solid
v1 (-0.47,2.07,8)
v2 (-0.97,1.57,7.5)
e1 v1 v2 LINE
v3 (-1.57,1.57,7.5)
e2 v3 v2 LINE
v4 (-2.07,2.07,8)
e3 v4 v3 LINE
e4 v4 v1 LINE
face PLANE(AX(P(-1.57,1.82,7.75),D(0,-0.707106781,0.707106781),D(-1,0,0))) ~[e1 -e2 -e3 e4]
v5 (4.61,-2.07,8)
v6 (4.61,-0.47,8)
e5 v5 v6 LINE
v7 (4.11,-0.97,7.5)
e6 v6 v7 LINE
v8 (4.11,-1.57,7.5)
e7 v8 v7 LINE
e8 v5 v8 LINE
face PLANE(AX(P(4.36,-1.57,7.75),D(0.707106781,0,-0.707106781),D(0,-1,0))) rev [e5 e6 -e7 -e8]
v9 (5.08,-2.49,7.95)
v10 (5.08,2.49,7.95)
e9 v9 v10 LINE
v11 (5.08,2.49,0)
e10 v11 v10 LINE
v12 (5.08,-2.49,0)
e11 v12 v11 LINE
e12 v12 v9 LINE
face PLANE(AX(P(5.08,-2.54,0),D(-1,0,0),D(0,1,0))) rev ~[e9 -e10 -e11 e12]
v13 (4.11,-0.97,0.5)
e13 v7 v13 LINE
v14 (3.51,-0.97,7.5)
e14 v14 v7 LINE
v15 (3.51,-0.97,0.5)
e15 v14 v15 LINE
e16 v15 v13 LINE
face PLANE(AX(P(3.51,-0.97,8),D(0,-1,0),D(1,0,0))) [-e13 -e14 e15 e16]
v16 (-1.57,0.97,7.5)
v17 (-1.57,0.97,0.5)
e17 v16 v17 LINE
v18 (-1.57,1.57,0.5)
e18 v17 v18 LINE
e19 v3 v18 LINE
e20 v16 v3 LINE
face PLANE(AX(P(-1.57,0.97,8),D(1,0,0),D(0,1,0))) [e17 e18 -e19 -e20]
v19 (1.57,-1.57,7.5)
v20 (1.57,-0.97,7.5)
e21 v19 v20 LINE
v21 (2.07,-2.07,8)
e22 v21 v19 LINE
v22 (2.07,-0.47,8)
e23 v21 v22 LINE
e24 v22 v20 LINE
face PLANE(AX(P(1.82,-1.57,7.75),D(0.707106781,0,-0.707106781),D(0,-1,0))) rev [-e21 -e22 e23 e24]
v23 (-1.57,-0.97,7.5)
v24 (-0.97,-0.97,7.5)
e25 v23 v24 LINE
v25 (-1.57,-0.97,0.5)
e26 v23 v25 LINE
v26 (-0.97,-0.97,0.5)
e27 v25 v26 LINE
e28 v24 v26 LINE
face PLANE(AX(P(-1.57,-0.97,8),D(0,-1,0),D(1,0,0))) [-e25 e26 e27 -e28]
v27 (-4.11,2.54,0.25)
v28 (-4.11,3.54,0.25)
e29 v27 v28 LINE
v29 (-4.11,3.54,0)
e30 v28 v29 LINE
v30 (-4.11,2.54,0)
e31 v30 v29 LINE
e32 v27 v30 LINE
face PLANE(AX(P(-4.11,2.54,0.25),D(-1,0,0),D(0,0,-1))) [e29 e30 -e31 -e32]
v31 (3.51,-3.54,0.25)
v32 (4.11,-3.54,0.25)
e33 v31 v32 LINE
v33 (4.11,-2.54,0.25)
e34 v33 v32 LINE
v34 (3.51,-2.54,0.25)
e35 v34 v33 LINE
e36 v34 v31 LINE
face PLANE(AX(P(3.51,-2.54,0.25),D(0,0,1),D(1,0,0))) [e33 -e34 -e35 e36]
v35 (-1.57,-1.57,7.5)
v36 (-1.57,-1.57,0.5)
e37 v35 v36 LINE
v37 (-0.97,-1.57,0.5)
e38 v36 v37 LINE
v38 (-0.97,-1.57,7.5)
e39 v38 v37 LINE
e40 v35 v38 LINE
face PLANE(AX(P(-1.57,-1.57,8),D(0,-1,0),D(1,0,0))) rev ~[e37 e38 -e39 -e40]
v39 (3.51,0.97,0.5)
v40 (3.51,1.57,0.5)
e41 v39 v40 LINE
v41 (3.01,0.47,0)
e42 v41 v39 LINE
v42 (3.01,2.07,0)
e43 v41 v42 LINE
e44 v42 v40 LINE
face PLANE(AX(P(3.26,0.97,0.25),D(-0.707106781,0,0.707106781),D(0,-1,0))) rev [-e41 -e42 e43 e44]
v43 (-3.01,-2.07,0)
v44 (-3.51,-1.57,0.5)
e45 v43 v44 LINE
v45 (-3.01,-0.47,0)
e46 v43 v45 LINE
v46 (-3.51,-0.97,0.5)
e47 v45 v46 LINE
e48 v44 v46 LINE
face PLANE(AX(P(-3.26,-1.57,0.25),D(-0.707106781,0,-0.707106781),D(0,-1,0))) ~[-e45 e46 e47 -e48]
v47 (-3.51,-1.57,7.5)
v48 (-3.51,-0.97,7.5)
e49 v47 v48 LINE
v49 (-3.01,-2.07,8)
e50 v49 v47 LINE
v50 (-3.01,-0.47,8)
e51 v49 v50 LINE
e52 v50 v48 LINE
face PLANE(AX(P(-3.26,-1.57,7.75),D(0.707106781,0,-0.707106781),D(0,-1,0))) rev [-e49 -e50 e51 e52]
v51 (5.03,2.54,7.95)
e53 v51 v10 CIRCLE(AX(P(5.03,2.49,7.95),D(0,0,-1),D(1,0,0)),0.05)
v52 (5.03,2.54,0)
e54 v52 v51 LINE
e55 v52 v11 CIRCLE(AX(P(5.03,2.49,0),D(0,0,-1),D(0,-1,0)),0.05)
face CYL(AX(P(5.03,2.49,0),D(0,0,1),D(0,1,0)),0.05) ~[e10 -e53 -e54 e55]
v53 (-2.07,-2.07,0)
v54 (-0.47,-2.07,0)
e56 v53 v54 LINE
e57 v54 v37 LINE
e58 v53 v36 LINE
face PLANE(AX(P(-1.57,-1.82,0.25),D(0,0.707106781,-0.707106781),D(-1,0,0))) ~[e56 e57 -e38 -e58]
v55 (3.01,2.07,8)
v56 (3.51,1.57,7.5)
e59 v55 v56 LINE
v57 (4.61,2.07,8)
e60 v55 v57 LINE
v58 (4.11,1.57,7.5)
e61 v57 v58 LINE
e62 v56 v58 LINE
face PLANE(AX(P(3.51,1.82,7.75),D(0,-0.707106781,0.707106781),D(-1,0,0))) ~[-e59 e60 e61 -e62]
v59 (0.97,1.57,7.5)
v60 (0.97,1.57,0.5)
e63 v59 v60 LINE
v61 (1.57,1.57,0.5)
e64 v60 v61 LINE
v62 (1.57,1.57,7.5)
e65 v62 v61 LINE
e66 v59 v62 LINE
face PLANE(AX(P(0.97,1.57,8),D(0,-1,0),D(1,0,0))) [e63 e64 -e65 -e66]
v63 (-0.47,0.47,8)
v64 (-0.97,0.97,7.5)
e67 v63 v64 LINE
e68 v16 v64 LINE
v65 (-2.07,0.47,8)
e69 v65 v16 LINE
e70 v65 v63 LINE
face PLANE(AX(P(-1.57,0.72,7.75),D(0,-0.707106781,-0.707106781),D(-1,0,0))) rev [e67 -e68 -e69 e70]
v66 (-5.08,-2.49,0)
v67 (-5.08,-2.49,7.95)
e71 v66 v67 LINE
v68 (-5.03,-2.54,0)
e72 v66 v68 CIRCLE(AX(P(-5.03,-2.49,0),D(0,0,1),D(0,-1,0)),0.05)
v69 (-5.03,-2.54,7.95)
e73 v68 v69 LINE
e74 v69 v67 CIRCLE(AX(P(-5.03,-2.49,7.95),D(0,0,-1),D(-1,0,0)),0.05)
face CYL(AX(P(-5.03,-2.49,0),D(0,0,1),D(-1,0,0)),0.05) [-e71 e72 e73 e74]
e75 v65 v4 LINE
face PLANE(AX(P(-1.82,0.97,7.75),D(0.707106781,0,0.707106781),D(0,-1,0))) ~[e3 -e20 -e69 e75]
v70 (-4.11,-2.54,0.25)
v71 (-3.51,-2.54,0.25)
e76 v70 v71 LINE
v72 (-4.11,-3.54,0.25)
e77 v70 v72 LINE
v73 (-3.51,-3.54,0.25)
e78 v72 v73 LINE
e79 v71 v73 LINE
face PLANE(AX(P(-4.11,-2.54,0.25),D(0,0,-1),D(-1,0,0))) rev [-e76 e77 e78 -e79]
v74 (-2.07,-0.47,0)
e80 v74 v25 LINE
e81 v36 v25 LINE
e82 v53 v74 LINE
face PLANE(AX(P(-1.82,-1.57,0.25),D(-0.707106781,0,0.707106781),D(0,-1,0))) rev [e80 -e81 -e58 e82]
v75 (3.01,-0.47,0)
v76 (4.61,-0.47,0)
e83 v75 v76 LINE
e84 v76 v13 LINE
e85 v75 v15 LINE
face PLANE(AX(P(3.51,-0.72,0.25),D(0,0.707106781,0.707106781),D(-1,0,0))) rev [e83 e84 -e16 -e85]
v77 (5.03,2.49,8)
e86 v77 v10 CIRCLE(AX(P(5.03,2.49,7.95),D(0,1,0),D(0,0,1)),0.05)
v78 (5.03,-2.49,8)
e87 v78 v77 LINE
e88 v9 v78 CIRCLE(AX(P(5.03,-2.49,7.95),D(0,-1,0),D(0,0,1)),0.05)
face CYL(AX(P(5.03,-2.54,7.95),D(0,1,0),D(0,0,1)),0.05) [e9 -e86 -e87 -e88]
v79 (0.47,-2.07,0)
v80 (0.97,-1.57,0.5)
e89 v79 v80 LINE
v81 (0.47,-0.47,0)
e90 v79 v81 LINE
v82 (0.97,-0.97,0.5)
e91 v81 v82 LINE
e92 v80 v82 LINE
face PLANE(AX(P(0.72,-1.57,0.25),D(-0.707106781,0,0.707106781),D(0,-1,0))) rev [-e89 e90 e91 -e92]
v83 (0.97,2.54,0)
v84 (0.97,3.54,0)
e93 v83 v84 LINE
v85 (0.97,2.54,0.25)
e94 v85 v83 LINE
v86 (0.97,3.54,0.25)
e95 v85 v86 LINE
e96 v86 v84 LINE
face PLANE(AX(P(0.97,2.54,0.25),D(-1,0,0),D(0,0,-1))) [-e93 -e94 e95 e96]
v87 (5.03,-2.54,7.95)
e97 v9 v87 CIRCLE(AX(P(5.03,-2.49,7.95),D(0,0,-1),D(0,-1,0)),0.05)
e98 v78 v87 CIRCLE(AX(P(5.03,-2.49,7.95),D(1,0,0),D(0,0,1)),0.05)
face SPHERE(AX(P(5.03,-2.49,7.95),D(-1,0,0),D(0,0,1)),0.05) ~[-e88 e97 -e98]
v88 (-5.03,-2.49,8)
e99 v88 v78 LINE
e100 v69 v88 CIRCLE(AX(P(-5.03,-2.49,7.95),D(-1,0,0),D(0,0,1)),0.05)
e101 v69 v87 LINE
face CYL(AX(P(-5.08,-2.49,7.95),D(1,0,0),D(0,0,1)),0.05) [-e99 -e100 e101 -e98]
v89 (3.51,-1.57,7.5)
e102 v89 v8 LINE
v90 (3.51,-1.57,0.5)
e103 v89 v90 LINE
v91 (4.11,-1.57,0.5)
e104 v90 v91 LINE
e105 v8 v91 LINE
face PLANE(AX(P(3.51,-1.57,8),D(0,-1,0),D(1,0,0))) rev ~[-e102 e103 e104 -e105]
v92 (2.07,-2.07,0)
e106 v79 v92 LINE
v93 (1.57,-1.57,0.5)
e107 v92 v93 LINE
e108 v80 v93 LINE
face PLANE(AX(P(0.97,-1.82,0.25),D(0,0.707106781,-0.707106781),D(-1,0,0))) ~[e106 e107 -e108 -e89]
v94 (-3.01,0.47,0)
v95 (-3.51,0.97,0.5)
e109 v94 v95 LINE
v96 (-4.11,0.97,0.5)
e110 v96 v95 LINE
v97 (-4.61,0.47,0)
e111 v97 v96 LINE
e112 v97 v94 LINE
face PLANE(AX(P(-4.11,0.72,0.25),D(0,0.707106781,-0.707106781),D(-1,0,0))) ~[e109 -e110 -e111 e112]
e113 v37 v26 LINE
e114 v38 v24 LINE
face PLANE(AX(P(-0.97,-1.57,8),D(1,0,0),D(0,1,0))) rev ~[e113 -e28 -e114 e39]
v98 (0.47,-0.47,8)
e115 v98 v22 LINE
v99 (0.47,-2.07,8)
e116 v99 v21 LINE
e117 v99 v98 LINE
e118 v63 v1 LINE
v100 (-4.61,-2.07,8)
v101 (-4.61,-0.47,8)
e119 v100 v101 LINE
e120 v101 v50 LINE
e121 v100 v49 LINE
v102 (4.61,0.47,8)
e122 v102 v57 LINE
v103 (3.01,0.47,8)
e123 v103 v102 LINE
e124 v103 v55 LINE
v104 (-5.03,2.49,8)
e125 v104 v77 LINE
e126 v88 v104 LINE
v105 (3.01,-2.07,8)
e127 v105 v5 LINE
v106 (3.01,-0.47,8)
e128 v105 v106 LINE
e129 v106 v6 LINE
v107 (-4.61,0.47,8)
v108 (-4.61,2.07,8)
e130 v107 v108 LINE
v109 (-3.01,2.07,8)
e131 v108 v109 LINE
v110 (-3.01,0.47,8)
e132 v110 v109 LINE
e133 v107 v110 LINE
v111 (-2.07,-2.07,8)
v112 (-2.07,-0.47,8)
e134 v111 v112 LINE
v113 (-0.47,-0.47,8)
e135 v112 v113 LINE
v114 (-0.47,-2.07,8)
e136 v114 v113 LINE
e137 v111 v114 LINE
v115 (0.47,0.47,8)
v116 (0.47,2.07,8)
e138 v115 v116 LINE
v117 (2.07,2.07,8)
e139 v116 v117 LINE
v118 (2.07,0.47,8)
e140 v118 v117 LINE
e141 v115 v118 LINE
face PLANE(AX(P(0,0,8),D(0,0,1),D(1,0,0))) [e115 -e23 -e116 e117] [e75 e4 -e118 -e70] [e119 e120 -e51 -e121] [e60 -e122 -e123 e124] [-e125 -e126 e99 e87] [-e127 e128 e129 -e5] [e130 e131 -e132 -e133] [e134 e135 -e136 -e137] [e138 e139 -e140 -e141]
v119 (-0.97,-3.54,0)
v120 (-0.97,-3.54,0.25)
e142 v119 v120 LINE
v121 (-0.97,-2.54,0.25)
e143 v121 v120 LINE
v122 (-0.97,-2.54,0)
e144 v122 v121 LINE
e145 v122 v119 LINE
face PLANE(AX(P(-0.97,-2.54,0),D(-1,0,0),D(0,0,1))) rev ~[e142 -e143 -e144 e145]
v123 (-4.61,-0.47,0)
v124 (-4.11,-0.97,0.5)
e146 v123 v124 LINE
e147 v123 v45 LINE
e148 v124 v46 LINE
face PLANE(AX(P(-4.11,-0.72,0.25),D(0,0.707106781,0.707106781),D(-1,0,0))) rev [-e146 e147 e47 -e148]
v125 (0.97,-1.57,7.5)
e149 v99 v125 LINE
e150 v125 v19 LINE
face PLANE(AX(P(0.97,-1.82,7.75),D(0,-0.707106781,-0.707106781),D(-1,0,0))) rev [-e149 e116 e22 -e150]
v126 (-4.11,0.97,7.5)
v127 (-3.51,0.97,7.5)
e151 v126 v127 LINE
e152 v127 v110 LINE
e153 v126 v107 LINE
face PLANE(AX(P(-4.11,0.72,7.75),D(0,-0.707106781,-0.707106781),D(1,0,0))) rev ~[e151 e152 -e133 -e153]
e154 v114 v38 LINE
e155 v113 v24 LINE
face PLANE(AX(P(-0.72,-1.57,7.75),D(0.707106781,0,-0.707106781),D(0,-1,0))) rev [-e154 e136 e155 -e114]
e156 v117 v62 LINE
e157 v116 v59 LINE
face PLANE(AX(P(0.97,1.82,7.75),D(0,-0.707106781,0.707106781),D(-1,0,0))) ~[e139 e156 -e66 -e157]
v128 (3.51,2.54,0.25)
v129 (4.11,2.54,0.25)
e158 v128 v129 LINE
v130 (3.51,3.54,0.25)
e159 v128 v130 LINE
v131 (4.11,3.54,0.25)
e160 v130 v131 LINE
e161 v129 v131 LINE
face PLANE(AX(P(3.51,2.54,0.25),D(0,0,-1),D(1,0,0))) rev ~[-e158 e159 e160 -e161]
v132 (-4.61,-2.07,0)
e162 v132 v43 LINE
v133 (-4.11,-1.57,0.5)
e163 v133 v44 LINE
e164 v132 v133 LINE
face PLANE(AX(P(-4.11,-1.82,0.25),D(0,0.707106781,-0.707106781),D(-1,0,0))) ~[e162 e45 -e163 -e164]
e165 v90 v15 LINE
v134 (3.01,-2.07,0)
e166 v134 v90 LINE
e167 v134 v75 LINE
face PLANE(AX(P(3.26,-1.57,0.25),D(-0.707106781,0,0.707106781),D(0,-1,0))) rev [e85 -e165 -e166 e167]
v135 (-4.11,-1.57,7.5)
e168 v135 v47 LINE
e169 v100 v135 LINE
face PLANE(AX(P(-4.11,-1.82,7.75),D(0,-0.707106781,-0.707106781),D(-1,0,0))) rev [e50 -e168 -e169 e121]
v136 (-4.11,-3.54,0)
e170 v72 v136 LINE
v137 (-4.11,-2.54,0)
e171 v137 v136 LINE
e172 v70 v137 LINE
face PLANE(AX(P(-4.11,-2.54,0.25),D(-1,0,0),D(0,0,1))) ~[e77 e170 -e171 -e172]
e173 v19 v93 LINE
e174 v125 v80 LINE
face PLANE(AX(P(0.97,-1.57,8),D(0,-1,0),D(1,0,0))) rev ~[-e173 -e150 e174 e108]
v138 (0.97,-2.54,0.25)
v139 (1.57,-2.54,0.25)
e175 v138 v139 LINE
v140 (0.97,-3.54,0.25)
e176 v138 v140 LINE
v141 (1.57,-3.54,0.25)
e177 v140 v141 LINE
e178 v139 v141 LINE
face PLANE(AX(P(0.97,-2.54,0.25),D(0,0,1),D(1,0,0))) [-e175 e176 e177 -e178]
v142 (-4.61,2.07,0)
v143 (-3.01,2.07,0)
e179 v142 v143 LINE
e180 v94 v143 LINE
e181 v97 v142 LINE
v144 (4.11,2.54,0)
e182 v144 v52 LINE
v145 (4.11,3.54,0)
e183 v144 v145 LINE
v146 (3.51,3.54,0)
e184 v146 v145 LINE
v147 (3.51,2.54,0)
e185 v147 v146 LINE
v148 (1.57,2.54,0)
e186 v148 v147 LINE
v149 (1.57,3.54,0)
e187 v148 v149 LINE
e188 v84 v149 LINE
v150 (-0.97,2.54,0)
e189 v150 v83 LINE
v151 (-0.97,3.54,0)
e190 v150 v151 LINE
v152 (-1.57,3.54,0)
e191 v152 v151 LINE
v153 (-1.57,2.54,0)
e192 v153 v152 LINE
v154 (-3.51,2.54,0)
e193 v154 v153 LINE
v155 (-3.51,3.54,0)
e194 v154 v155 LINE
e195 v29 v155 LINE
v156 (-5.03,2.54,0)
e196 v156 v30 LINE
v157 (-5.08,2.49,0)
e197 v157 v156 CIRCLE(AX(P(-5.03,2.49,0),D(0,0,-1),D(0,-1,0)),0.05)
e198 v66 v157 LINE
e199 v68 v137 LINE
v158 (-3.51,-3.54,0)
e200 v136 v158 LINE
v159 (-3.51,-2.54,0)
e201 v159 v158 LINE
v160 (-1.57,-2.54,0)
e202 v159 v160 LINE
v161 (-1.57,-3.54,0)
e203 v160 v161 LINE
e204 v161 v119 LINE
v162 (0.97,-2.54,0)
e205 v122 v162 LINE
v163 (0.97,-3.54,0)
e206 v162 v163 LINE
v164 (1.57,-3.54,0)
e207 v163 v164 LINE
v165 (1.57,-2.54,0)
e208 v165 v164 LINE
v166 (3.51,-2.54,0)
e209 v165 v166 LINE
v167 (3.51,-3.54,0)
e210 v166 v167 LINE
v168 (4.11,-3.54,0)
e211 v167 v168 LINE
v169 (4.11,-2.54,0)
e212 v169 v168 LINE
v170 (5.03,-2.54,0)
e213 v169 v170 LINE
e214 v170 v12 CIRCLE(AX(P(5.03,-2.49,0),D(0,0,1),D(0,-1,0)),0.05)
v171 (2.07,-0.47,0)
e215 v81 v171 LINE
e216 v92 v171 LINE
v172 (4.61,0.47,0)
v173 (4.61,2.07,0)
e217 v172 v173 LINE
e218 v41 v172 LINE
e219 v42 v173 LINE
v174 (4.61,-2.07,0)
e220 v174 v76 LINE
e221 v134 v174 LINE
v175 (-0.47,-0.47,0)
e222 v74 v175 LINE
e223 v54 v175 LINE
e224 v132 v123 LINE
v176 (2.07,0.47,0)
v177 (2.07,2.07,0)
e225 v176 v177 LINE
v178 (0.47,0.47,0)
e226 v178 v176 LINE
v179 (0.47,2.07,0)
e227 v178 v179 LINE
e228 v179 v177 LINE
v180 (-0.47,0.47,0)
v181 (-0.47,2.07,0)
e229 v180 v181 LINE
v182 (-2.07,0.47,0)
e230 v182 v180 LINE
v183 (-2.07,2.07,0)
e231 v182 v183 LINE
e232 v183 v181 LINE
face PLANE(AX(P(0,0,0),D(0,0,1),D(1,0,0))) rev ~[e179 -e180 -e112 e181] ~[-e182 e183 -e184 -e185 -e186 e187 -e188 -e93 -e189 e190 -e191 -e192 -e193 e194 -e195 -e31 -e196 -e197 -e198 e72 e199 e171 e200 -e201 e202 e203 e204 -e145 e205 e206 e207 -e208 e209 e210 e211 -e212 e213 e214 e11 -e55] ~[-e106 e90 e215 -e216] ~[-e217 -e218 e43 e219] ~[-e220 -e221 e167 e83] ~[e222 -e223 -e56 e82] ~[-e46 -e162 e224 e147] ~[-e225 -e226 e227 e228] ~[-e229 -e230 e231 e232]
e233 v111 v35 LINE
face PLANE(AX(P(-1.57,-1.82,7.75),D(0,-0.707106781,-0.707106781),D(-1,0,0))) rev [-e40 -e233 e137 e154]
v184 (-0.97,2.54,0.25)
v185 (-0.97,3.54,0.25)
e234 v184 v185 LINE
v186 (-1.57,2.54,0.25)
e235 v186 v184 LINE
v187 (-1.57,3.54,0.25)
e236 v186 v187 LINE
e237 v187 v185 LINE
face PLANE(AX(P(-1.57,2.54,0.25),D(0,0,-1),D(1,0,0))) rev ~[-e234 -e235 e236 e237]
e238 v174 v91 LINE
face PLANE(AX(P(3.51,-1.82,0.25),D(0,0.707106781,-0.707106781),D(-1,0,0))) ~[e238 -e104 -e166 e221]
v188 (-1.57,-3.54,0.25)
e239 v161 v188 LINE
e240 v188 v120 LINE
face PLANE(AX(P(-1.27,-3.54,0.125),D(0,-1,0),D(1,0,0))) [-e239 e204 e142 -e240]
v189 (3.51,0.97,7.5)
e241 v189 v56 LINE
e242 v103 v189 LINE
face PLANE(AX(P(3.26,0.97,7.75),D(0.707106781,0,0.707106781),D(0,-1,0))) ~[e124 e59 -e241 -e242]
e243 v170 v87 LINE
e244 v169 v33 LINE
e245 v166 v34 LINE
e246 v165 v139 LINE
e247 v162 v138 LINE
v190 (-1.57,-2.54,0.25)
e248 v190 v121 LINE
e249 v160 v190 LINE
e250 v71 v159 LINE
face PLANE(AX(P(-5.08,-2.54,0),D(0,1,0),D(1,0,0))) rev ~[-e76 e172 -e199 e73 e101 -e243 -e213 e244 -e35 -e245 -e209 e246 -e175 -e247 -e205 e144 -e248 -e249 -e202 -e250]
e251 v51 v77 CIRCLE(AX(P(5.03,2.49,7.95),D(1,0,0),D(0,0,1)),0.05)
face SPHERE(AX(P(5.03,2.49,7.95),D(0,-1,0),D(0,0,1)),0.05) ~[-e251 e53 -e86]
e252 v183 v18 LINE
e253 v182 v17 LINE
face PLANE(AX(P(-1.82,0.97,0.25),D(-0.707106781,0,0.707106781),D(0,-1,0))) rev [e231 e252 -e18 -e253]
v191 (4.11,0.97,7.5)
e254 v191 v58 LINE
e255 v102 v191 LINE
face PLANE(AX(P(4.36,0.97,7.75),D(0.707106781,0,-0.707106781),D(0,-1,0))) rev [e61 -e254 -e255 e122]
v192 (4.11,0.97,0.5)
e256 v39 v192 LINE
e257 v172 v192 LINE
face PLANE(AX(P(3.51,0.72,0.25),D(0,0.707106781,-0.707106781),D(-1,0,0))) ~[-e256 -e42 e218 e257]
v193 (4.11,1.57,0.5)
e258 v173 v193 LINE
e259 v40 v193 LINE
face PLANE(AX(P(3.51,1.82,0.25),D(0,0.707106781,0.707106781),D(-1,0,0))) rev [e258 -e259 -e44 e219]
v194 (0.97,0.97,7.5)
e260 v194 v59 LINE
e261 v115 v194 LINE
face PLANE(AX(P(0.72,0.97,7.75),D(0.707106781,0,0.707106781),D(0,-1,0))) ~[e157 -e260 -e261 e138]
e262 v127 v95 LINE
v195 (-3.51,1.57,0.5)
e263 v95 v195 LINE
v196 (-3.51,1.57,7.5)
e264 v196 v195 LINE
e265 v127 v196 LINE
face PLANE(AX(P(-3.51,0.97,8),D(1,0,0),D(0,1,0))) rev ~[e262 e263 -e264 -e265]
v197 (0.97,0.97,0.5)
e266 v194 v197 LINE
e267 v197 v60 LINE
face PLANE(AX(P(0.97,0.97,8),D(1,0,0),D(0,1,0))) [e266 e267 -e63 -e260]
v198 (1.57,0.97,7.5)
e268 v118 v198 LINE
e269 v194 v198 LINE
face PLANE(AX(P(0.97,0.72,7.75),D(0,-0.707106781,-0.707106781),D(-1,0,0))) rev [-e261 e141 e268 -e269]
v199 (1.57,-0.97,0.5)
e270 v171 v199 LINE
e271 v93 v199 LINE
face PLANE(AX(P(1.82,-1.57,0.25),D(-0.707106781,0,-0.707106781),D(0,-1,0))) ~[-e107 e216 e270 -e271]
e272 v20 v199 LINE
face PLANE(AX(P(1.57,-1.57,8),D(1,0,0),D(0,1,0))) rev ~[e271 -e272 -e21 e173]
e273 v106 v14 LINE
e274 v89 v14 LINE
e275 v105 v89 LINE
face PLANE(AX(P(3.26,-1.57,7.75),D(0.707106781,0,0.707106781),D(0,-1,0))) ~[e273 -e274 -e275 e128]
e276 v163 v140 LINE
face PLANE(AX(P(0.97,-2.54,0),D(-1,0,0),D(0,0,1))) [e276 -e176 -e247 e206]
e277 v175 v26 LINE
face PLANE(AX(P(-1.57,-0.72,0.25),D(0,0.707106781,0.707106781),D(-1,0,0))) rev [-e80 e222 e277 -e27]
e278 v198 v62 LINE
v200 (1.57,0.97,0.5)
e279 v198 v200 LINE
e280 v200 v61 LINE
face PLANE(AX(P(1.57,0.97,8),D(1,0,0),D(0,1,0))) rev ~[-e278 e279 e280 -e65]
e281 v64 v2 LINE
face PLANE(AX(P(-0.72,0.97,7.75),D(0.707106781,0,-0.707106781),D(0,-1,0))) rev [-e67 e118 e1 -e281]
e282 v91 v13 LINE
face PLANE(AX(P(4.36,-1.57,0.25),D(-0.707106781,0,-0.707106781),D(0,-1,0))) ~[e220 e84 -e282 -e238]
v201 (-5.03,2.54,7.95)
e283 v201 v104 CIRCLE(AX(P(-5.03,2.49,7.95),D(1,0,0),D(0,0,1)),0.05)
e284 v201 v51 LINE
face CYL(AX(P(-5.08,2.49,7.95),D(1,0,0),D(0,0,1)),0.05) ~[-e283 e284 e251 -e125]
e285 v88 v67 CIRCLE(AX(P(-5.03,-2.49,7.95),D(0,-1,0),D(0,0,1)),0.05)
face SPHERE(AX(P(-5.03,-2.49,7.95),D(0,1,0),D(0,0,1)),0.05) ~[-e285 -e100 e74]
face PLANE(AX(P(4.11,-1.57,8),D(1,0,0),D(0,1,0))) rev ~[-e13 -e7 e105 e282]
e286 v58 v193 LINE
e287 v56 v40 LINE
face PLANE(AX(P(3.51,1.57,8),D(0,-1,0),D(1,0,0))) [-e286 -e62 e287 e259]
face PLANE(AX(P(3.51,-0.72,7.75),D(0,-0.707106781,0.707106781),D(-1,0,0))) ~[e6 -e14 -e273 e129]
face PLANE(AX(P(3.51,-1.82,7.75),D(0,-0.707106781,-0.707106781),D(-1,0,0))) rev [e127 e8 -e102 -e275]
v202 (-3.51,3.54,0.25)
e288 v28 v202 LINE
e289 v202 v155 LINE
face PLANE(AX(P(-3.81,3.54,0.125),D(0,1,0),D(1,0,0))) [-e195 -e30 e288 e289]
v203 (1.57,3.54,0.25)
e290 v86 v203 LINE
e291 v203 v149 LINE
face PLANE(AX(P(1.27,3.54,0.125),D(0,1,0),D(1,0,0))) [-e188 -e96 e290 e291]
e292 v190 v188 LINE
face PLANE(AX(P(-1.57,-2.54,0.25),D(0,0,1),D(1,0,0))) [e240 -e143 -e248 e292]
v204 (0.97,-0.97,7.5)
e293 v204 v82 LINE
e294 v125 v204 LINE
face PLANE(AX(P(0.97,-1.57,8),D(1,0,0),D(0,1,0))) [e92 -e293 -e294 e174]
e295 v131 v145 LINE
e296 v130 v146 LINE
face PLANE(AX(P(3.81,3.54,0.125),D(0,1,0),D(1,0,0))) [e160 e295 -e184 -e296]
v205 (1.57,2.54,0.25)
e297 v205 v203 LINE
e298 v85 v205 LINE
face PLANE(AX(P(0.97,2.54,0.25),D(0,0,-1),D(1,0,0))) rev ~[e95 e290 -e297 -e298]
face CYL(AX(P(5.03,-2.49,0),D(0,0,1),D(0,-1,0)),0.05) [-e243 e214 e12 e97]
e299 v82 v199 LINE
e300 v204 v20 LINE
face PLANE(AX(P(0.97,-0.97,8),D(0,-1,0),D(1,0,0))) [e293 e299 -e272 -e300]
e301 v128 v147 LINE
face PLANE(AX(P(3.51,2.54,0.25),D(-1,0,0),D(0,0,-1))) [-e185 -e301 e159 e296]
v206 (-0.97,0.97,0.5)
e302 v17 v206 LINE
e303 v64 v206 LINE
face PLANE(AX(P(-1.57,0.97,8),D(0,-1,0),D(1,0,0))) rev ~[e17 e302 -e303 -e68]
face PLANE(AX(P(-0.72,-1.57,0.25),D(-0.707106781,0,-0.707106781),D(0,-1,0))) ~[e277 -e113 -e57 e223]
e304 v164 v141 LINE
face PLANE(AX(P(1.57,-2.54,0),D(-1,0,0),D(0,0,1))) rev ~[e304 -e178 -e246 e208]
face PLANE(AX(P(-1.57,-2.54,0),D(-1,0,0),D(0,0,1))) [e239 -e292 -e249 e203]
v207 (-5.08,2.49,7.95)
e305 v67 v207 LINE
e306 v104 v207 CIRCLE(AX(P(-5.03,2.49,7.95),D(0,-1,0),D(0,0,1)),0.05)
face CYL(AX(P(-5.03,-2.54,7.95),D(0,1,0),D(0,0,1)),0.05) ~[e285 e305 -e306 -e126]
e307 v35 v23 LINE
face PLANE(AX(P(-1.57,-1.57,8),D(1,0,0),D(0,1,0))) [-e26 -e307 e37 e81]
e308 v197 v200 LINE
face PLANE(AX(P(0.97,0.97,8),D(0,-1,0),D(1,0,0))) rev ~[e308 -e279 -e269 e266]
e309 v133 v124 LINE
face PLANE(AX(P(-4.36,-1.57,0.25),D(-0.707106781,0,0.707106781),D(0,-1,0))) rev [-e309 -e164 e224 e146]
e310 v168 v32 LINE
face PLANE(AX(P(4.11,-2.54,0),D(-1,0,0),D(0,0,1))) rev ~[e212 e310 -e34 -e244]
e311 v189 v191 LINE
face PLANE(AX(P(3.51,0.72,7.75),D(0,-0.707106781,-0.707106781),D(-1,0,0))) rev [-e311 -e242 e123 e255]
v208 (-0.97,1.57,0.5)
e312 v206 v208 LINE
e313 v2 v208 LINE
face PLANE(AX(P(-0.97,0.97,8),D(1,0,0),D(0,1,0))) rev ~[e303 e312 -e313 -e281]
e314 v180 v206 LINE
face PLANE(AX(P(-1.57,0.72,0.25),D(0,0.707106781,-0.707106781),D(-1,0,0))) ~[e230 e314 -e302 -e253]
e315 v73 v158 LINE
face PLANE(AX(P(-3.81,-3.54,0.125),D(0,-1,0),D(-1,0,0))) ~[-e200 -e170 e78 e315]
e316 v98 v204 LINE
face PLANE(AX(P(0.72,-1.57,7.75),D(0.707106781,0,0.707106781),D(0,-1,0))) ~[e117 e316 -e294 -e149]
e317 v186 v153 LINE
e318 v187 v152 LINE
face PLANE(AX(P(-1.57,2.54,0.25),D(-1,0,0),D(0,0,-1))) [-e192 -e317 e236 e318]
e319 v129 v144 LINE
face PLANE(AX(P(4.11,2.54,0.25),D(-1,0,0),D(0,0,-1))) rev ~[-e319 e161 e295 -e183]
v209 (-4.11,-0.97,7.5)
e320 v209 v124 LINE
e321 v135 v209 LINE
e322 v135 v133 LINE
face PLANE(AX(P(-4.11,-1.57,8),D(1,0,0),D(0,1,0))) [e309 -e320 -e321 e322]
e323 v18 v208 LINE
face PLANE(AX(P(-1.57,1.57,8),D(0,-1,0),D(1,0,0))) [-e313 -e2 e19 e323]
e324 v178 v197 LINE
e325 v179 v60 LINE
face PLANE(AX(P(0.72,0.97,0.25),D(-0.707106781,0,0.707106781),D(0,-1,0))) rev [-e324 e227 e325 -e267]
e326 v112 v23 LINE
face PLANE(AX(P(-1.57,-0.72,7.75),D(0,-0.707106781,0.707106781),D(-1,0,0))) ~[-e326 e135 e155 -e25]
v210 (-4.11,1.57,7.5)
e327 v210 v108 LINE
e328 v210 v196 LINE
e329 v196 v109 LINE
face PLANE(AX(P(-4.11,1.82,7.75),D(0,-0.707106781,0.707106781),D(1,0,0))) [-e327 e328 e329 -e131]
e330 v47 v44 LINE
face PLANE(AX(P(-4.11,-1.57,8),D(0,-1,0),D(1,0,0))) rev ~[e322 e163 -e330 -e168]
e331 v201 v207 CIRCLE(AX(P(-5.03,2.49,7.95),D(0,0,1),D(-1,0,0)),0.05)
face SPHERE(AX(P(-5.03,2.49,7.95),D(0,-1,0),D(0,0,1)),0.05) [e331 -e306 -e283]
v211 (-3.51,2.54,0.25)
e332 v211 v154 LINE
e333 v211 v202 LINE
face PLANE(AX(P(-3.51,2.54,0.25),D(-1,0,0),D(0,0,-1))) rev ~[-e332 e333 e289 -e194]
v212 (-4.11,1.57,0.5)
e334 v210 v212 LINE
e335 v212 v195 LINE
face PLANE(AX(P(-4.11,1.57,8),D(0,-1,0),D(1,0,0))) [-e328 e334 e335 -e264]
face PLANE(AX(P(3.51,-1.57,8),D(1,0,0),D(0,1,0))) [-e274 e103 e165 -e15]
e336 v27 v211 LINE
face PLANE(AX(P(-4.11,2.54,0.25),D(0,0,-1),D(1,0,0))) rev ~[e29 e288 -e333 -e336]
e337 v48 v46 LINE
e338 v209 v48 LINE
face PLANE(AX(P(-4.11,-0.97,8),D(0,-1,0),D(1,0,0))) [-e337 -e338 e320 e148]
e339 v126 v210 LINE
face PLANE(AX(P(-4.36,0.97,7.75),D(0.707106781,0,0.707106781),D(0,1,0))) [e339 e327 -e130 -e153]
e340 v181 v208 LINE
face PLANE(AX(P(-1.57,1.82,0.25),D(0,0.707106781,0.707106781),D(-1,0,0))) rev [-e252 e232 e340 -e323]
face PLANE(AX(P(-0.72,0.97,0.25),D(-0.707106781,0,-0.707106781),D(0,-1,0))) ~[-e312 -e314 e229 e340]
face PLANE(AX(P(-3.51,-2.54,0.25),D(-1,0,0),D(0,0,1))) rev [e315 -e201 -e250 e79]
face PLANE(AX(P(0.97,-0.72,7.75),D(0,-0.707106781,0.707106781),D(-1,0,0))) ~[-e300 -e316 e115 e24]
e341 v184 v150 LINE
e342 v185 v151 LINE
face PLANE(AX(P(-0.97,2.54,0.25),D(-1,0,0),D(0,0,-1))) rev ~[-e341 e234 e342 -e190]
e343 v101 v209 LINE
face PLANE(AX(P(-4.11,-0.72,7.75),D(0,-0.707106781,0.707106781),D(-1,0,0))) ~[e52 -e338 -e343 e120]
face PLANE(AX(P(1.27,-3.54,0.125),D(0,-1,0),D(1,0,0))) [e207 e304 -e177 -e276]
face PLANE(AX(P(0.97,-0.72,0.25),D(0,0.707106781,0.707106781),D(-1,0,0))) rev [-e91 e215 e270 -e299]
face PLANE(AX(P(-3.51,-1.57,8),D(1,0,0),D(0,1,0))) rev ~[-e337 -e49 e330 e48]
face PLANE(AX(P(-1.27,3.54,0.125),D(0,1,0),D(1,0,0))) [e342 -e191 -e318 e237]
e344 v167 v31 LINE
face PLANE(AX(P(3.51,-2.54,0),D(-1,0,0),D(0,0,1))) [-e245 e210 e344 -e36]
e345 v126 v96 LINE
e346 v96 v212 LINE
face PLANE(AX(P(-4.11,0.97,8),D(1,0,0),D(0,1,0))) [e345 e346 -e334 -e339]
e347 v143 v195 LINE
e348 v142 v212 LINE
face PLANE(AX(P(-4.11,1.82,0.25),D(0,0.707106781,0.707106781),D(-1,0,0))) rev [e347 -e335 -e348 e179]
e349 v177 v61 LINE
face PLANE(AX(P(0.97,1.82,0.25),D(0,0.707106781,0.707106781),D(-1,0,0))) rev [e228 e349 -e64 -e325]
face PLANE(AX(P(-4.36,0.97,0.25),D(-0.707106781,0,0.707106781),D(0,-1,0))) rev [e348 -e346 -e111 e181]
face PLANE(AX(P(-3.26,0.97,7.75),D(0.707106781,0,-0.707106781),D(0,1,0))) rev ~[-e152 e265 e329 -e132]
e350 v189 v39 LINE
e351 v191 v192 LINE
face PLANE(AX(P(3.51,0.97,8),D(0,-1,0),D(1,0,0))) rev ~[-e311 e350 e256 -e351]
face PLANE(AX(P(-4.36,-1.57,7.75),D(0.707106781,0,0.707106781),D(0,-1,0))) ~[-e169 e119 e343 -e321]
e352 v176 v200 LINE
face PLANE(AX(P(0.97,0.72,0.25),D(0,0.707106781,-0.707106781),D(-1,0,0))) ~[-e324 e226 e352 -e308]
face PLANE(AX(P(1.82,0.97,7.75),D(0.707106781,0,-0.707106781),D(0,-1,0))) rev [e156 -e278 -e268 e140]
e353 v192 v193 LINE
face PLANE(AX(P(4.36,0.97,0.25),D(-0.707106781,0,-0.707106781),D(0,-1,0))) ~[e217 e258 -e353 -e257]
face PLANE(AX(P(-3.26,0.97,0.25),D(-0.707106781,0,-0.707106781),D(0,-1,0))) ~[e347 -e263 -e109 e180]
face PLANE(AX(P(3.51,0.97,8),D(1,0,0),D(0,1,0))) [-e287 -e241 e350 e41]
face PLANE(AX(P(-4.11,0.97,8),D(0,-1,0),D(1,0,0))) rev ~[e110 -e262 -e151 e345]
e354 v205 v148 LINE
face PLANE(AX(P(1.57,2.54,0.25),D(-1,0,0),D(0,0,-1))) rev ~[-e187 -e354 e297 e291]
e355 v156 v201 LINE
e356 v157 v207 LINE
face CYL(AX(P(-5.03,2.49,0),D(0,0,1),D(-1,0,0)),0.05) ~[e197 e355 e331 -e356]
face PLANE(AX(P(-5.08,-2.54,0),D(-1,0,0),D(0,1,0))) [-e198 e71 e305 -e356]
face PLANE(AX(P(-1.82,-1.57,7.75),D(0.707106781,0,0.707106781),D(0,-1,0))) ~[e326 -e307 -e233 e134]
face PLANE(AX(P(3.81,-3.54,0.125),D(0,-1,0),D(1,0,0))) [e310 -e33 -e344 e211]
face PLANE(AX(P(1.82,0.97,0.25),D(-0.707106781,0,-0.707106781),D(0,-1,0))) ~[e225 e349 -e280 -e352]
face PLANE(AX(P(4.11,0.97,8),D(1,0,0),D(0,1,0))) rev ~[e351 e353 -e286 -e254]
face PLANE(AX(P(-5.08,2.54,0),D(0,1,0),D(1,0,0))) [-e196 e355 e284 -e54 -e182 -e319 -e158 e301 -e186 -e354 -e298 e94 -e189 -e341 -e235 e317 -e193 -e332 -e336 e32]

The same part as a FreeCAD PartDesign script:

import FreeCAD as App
import Part
import Sketcher


def edges_at(feature, points):
    """Names of the edges that pass closest to the given points."""
    edges = feature.Shape.Edges
    near = lambda p: min(range(len(edges)), key=lambda i: edges[i].distToShape(Part.Vertex(*p))[0])
    return sorted({f"Edge{near(p) + 1}" for p in points})

doc = App.newDocument("Part")
params = doc.addObject("Spreadsheet::Sheet", "Params")
for row, (alias, value) in enumerate([
    ("sketch1_width", "10.16 mm"),
    ("sketch1_height", "5.08 mm"),
    ("pad1_length", "8 mm"),
    ("sketch2_width", "0.6 mm"),
    ("chamfer_size", "0.5 mm"),
    ("chamfer2_size", "0.5 mm"),
    ("fillet_radius", "0.05 mm"),
    ("sketch3_width", "0.6 mm"),
    ("sketch3_height", "0.25 mm"),
    ("pad2_length", "1 mm"),
    ("linearpattern_pitch", "2.54 mm"),
    ("sketch4_width", "0.6 mm"),
    ("sketch4_height", "0.25 mm"),
    ("pad3_length", "1 mm"),
    ("sketch5_width", "0.6 mm"),
    ("sketch5_height", "0.25 mm"),
    ("pad4_length", "1 mm"),
    ("sketch6_width", "0.6 mm"),
    ("sketch6_height", "0.25 mm"),
    ("pad5_length", "1 mm"),
], start=1):
    params.set(f"A{row}", alias)
    params.set(f"B{row}", "=" + value)
    params.setAlias(f"B{row}", alias)

body = doc.addObject("PartDesign::Body", "Body")

# Sketch on XY plane
sketch1 = body.newObject("Sketcher::SketchObject", "Sketch")
sketch1.AttachmentSupport = (doc.getObject("XY_Plane"), [""])
sketch1.MapMode = "FlatFace"
sketch1.addGeometry(Part.LineSegment(App.Vector(-5, 3, 0), App.Vector(-5, -3, 0)), False)
sketch1.addGeometry(Part.LineSegment(App.Vector(-5, -3, 0), App.Vector(5, -3, 0)), False)
sketch1.addGeometry(Part.LineSegment(App.Vector(5, -3, 0), App.Vector(5, 3, 0)), False)
sketch1.addGeometry(Part.LineSegment(App.Vector(5, 3, 0), App.Vector(-5, 3, 0)), False)
sketch1.addConstraint(Sketcher.Constraint("Coincident", 0, 2, 1, 1))
sketch1.addConstraint(Sketcher.Constraint("Coincident", 1, 2, 2, 1))
sketch1.addConstraint(Sketcher.Constraint("Coincident", 2, 2, 3, 1))
sketch1.addConstraint(Sketcher.Constraint("Coincident", 3, 2, 0, 1))
sketch1.addConstraint(Sketcher.Constraint("Vertical", 0))
sketch1.addConstraint(Sketcher.Constraint("Horizontal", 1))
sketch1.addConstraint(Sketcher.Constraint("Vertical", 2))
sketch1.addConstraint(Sketcher.Constraint("Horizontal", 3))
sketch1.addConstraint(Sketcher.Constraint("Symmetric", 0, 2, 2, 2, -1, 1))
sketch1.addConstraint(Sketcher.Constraint("DistanceX", 1, 1, 1, 2, 10.16))
sketch1.addConstraint(Sketcher.Constraint("DistanceY", 0, 2, 0, 1, 5.08))
sketch1.setExpression("Constraints[9]", "Params.sketch1_width")
sketch1.setExpression("Constraints[10]", "Params.sketch1_height")
pad1 = body.newObject("PartDesign::Pad", "Pad")
pad1.Profile = sketch1
pad1.setExpression("Length", "Params.pad1_length")

# Sketch on XY plane
sketch2 = body.newObject("Sketcher::SketchObject", "Sketch001")
sketch2.AttachmentSupport = (doc.getObject("XY_Plane"), [""])
sketch2.MapMode = "FlatFace"
sketch2.AttachmentOffset = App.Placement(App.Vector(0, 0, 8), App.Rotation())
sketch2.addGeometry(Part.LineSegment(App.Vector(1, 1.6, 0), App.Vector(1, 1, 0)), False)
sketch2.addGeometry(Part.LineSegment(App.Vector(1, 1, 0), App.Vector(1.6, 1, 0)), False)
sketch2.addGeometry(Part.LineSegment(App.Vector(1.6, 1, 0), App.Vector(1.6, 1.6, 0)), False)
sketch2.addGeometry(Part.LineSegment(App.Vector(1.6, 1.6, 0), App.Vector(1, 1.6, 0)), False)
sketch2.addGeometry(Part.LineSegment(App.Vector(-1.6, 1.6, 0), App.Vector(-1.6, 1, 0)), False)
sketch2.addGeometry(Part.LineSegment(App.Vector(-1.6, 1, 0), App.Vector(-1, 1, 0)), False)
sketch2.addGeometry(Part.LineSegment(App.Vector(-1, 1, 0), App.Vector(-1, 1.6, 0)), False)
sketch2.addGeometry(Part.LineSegment(App.Vector(-1, 1.6, 0), App.Vector(-1.6, 1.6, 0)), False)
sketch2.addGeometry(Part.LineSegment(App.Vector(3.5, 1.6, 0), App.Vector(3.5, 1, 0)), False)
sketch2.addGeometry(Part.LineSegment(App.Vector(3.5, 1, 0), App.Vector(4.1, 1, 0)), False)
sketch2.addGeometry(Part.LineSegment(App.Vector(4.1, 1, 0), App.Vector(4.1, 1.6, 0)), False)
sketch2.addGeometry(Part.LineSegment(App.Vector(4.1, 1.6, 0), App.Vector(3.5, 1.6, 0)), False)
sketch2.addGeometry(Part.LineSegment(App.Vector(-1.6, -1, 0), App.Vector(-1.6, -1.6, 0)), False)
sketch2.addGeometry(Part.LineSegment(App.Vector(-1.6, -1.6, 0), App.Vector(-1, -1.6, 0)), False)
sketch2.addGeometry(Part.LineSegment(App.Vector(-1, -1.6, 0), App.Vector(-1, -1, 0)), False)
sketch2.addGeometry(Part.LineSegment(App.Vector(-1, -1, 0), App.Vector(-1.6, -1, 0)), False)
sketch2.addGeometry(Part.LineSegment(App.Vector(1, -1, 0), App.Vector(1, -1.6, 0)), False)
sketch2.addGeometry(Part.LineSegment(App.Vector(1, -1.6, 0), App.Vector(1.6, -1.6, 0)), False)
sketch2.addGeometry(Part.LineSegment(App.Vector(1.6, -1.6, 0), App.Vector(1.6, -1, 0)), False)
sketch2.addGeometry(Part.LineSegment(App.Vector(1.6, -1, 0), App.Vector(1, -1, 0)), False)
sketch2.addGeometry(Part.LineSegment(App.Vector(3.5, -1, 0), App.Vector(3.5, -1.6, 0)), False)
sketch2.addGeometry(Part.LineSegment(App.Vector(3.5, -1.6, 0), App.Vector(4.1, -1.6, 0)), False)
sketch2.addGeometry(Part.LineSegment(App.Vector(4.1, -1.6, 0), App.Vector(4.1, -1, 0)), False)
sketch2.addGeometry(Part.LineSegment(App.Vector(4.1, -1, 0), App.Vector(3.5, -1, 0)), False)
sketch2.addGeometry(Part.LineSegment(App.Vector(-4.1, -1, 0), App.Vector(-4.1, -1.6, 0)), False)
sketch2.addGeometry(Part.LineSegment(App.Vector(-4.1, -1.6, 0), App.Vector(-3.5, -1.6, 0)), False)
sketch2.addGeometry(Part.LineSegment(App.Vector(-3.5, -1.6, 0), App.Vector(-3.5, -1, 0)), False)
sketch2.addGeometry(Part.LineSegment(App.Vector(-3.5, -1, 0), App.Vector(-4.1, -1, 0)), False)
sketch2.addGeometry(Part.LineSegment(App.Vector(-4.1, 1.6, 0), App.Vector(-4.1, 1, 0)), False)
sketch2.addGeometry(Part.LineSegment(App.Vector(-4.1, 1, 0), App.Vector(-3.5, 1, 0)), False)
sketch2.addGeometry(Part.LineSegment(App.Vector(-3.5, 1, 0), App.Vector(-3.5, 1.6, 0)), False)
sketch2.addGeometry(Part.LineSegment(App.Vector(-3.5, 1.6, 0), App.Vector(-4.1, 1.6, 0)), False)
sketch2.addConstraint(Sketcher.Constraint("Coincident", 0, 2, 1, 1))
sketch2.addConstraint(Sketcher.Constraint("Coincident", 1, 2, 2, 1))
sketch2.addConstraint(Sketcher.Constraint("Coincident", 2, 2, 3, 1))
sketch2.addConstraint(Sketcher.Constraint("Coincident", 3, 2, 0, 1))
sketch2.addConstraint(Sketcher.Constraint("Coincident", 4, 2, 5, 1))
sketch2.addConstraint(Sketcher.Constraint("Coincident", 5, 2, 6, 1))
sketch2.addConstraint(Sketcher.Constraint("Coincident", 6, 2, 7, 1))
sketch2.addConstraint(Sketcher.Constraint("Coincident", 7, 2, 4, 1))
sketch2.addConstraint(Sketcher.Constraint("Coincident", 8, 2, 9, 1))
sketch2.addConstraint(Sketcher.Constraint("Coincident", 9, 2, 10, 1))
sketch2.addConstraint(Sketcher.Constraint("Coincident", 10, 2, 11, 1))
sketch2.addConstraint(Sketcher.Constraint("Coincident", 11, 2, 8, 1))
sketch2.addConstraint(Sketcher.Constraint("Coincident", 12, 2, 13, 1))
sketch2.addConstraint(Sketcher.Constraint("Coincident", 13, 2, 14, 1))
sketch2.addConstraint(Sketcher.Constraint("Coincident", 14, 2, 15, 1))
sketch2.addConstraint(Sketcher.Constraint("Coincident", 15, 2, 12, 1))
sketch2.addConstraint(Sketcher.Constraint("Coincident", 16, 2, 17, 1))
sketch2.addConstraint(Sketcher.Constraint("Coincident", 17, 2, 18, 1))
sketch2.addConstraint(Sketcher.Constraint("Coincident", 18, 2, 19, 1))
sketch2.addConstraint(Sketcher.Constraint("Coincident", 19, 2, 16, 1))
sketch2.addConstraint(Sketcher.Constraint("Coincident", 20, 2, 21, 1))
sketch2.addConstraint(Sketcher.Constraint("Coincident", 21, 2, 22, 1))
sketch2.addConstraint(Sketcher.Constraint("Coincident", 22, 2, 23, 1))
sketch2.addConstraint(Sketcher.Constraint("Coincident", 23, 2, 20, 1))
sketch2.addConstraint(Sketcher.Constraint("Coincident", 24, 2, 25, 1))
sketch2.addConstraint(Sketcher.Constraint("Coincident", 25, 2, 26, 1))
sketch2.addConstraint(Sketcher.Constraint("Coincident", 26, 2, 27, 1))
sketch2.addConstraint(Sketcher.Constraint("Coincident", 27, 2, 24, 1))
sketch2.addConstraint(Sketcher.Constraint("Coincident", 28, 2, 29, 1))
sketch2.addConstraint(Sketcher.Constraint("Coincident", 29, 2, 30, 1))
sketch2.addConstraint(Sketcher.Constraint("Coincident", 30, 2, 31, 1))
sketch2.addConstraint(Sketcher.Constraint("Coincident", 31, 2, 28, 1))
sketch2.addConstraint(Sketcher.Constraint("Vertical", 0))
sketch2.addConstraint(Sketcher.Constraint("Horizontal", 1))
sketch2.addConstraint(Sketcher.Constraint("Vertical", 2))
sketch2.addConstraint(Sketcher.Constraint("Horizontal", 3))
sketch2.addConstraint(Sketcher.Constraint("Vertical", 4))
sketch2.addConstraint(Sketcher.Constraint("Horizontal", 5))
sketch2.addConstraint(Sketcher.Constraint("Vertical", 6))
sketch2.addConstraint(Sketcher.Constraint("Horizontal", 7))
sketch2.addConstraint(Sketcher.Constraint("Vertical", 8))
sketch2.addConstraint(Sketcher.Constraint("Horizontal", 9))
sketch2.addConstraint(Sketcher.Constraint("Vertical", 10))
sketch2.addConstraint(Sketcher.Constraint("Horizontal", 11))
sketch2.addConstraint(Sketcher.Constraint("Vertical", 12))
sketch2.addConstraint(Sketcher.Constraint("Horizontal", 13))
sketch2.addConstraint(Sketcher.Constraint("Vertical", 14))
sketch2.addConstraint(Sketcher.Constraint("Horizontal", 15))
sketch2.addConstraint(Sketcher.Constraint("Vertical", 16))
sketch2.addConstraint(Sketcher.Constraint("Horizontal", 17))
sketch2.addConstraint(Sketcher.Constraint("Vertical", 18))
sketch2.addConstraint(Sketcher.Constraint("Horizontal", 19))
sketch2.addConstraint(Sketcher.Constraint("Vertical", 20))
sketch2.addConstraint(Sketcher.Constraint("Horizontal", 21))
sketch2.addConstraint(Sketcher.Constraint("Vertical", 22))
sketch2.addConstraint(Sketcher.Constraint("Horizontal", 23))
sketch2.addConstraint(Sketcher.Constraint("Vertical", 24))
sketch2.addConstraint(Sketcher.Constraint("Horizontal", 25))
sketch2.addConstraint(Sketcher.Constraint("Vertical", 26))
sketch2.addConstraint(Sketcher.Constraint("Horizontal", 27))
sketch2.addConstraint(Sketcher.Constraint("Vertical", 28))
sketch2.addConstraint(Sketcher.Constraint("Horizontal", 29))
sketch2.addConstraint(Sketcher.Constraint("Vertical", 30))
sketch2.addConstraint(Sketcher.Constraint("Horizontal", 31))
sketch2.addConstraint(Sketcher.Constraint("Symmetric", 2, 2, 12, 2, -1, 1))
sketch2.addConstraint(Sketcher.Constraint("Symmetric", 0, 2, 14, 2, -1, 1))
sketch2.addConstraint(Sketcher.Constraint("Symmetric", 6, 2, 16, 2, -1, 1))
sketch2.addConstraint(Sketcher.Constraint("Symmetric", 4, 2, 18, 2, -1, 1))
sketch2.addConstraint(Sketcher.Constraint("Symmetric", 10, 2, 24, 2, -1, 1))
sketch2.addConstraint(Sketcher.Constraint("Symmetric", 8, 2, 26, 2, -1, 1))
sketch2.addConstraint(Sketcher.Constraint("Symmetric", 22, 2, 28, 2, -1, 1))
sketch2.addConstraint(Sketcher.Constraint("Symmetric", 20, 2, 30, 2, -1, 1))
sketch2.addConstraint(Sketcher.Constraint("Symmetric", 1, 2, 4, 2, -2))
sketch2.addConstraint(Sketcher.Constraint("Symmetric", 3, 2, 6, 2, -2))
sketch2.addConstraint(Sketcher.Constraint("Symmetric", 21, 2, 24, 2, -2))
sketch2.addConstraint(Sketcher.Constraint("Symmetric", 23, 2, 26, 2, -2))
sketch2.addConstraint(Sketcher.Constraint("Horizontal", 5, 2, 8, 2))
sketch2.addConstraint(Sketcher.Constraint("Horizontal", 7, 2, 10, 2))
sketch2.addConstraint(Sketcher.Constraint("Equal", 7, 9))
sketch2.addConstraint(Sketcher.Constraint("Equal", 31, 0))
sketch2.addConstraint(Sketcher.Constraint("DistanceX", 1, 1, 1, 2, 0.6))
sketch2.addConstraint(Sketcher.Constraint("DistanceX", -1, 1, 0, 2, 0.97))
sketch2.addConstraint(Sketcher.Constraint("DistanceY", -1, 1, 0, 2, 0.97))
sketch2.addConstraint(Sketcher.Constraint("DistanceX", -1, 1, 8, 2, 3.51))
sketch2.setExpression("Constraints[80]", "Params.sketch2_width")
pocket1 = body.newObject("PartDesign::Pocket", "Pocket")
pocket1.Profile = sketch2
pocket1.Type = "ThroughAll"
doc.recompute()

chamfer = body.newObject("PartDesign::Chamfer", "Chamfer")
chamfer.Base = (pocket1, edges_at(pocket1, [
    (-3.81, 1.57, 0),
    (-3.51, 1.27, 0),
    (-3.81, 0.97, 0),
    (-4.11, 1.27, 0),
    (-0.97, 1.27, 0),
    (-1.27, 0.97, 0),
    (-1.57, 1.27, 0),
    (-1.27, 1.57, 0),
    (1.57, 1.27, 0),
    (1.27, 0.97, 0),
    (0.97, 1.27, 0),
    (1.27, 1.57, 0),
    (-3.81, -0.97, 0),
    (-3.51, -1.27, 0),
    (-3.81, -1.57, 0),
    (-4.11, -1.27, 0),
    (4.11, 1.27, 0),
    (3.81, 0.97, 0),
    (3.51, 1.27, 0),
    (3.81, 1.57, 0),
    (-0.97, -1.27, 0),
    (-1.27, -1.57, 0),
    (-1.57, -1.27, 0),
    (-1.27, -0.97, 0),
    (1.57, -1.27, 0),
    (1.27, -1.57, 0),
    (0.97, -1.27, 0),
    (1.27, -0.97, 0),
    (4.11, -1.27, 0),
    (3.81, -1.57, 0),
    (3.51, -1.27, 0),
    (3.81, -0.97, 0),
    (4.11, -1.27, 8),
    (3.81, -0.97, 8),
    (3.51, -1.27, 8),
    (3.81, -1.57, 8),
]))
chamfer.setExpression("Size", "Params.chamfer_size")
doc.recompute()

chamfer2 = body.newObject("PartDesign::Chamfer", "Chamfer001")
chamfer2.Base = (chamfer, edges_at(chamfer, [
    (-3.81, 1.57, 8),
    (-4.11, 1.27, 8),
    (-3.81, 0.97, 8),
    (-3.51, 1.27, 8),
    (-0.97, 1.27, 8),
    (-1.27, 1.57, 8),
    (-1.57, 1.27, 8),
    (-1.27, 0.97, 8),
    (1.57, 1.27, 8),
    (1.27, 1.57, 8),
    (0.97, 1.27, 8),
    (1.27, 0.97, 8),
    (-3.81, -0.97, 8),
    (-4.11, -1.27, 8),
    (-3.81, -1.57, 8),
    (-3.51, -1.27, 8),
    (4.11, 1.27, 8),
    (3.81, 1.57, 8),
    (3.51, 1.27, 8),
    (3.81, 0.97, 8),
    (-0.97, -1.27, 8),
    (-1.27, -0.97, 8),
    (-1.57, -1.27, 8),
    (-1.27, -1.57, 8),
    (1.57, -1.27, 8),
    (1.27, -0.97, 8),
    (0.97, -1.27, 8),
    (1.27, -1.57, 8),
]))
chamfer2.setExpression("Size", "Params.chamfer2_size")
doc.recompute()

fillet = body.newObject("PartDesign::Fillet", "Fillet")
fillet.Base = (chamfer2, edges_at(chamfer2, [
    (-5.08, 0, 8),
    (0, -2.54, 8),
    (5.08, 0, 8),
    (0, 2.54, 8),
    (5.08, -2.54, 4),
    (-5.08, -2.54, 4),
    (-5.08, 2.54, 4),
    (5.08, 2.54, 4),
]))
fillet.setExpression("Radius", "Params.fillet_radius")

# Sketch on XZ plane
sketch3 = body.newObject("Sketcher::SketchObject", "Sketch002")
sketch3.AttachmentSupport = (doc.getObject("XZ_Plane"), [""])
sketch3.MapMode = "FlatFace"
sketch3.AttachmentOffset = App.Placement(App.Vector(0, 0, -2.54), App.Rotation())
sketch3.addGeometry(Part.LineSegment(App.Vector(-4.11, 0, 0), App.Vector(-4.11, 0.25, 0)), False)
sketch3.addGeometry(Part.LineSegment(App.Vector(-4.11, 0.25, 0), App.Vector(-3.51, 0.25, 0)), False)
sketch3.addGeometry(Part.LineSegment(App.Vector(-3.51, 0.25, 0), App.Vector(-3.51, 0, 0)), False)
sketch3.addGeometry(Part.LineSegment(App.Vector(-3.51, 0, 0), App.Vector(-4.11, 0, 0)), False)
sketch3.addConstraint(Sketcher.Constraint("Coincident", 0, 2, 1, 1))
sketch3.addConstraint(Sketcher.Constraint("Coincident", 1, 2, 2, 1))
sketch3.addConstraint(Sketcher.Constraint("Coincident", 2, 2, 3, 1))
sketch3.addConstraint(Sketcher.Constraint("Coincident", 3, 2, 0, 1))
sketch3.addConstraint(Sketcher.Constraint("Vertical", 0))
sketch3.addConstraint(Sketcher.Constraint("Horizontal", 1))
sketch3.addConstraint(Sketcher.Constraint("Vertical", 2))
sketch3.addConstraint(Sketcher.Constraint("Horizontal", 3))
sketch3.addConstraint(Sketcher.Constraint("PointOnObject", 2, 2, -1))
sketch3.addConstraint(Sketcher.Constraint("DistanceX", 1, 1, 1, 2, 0.6))
sketch3.addConstraint(Sketcher.Constraint("DistanceY", 0, 1, 0, 2, 0.25))
sketch3.addConstraint(Sketcher.Constraint("DistanceX", 0, 2, -1, 1, 4.11))
sketch3.setExpression("Constraints[9]", "Params.sketch3_width")
sketch3.setExpression("Constraints[10]", "Params.sketch3_height")
pad2 = body.newObject("PartDesign::Pad", "Pad001")
pad2.Profile = sketch3
pad2.setExpression("Length", "Params.pad2_length")
pad2.Reversed = True
doc.recompute()

linearpattern = body.newObject("PartDesign::LinearPattern", "LinearPattern")
linearpattern.Originals = [pad2]
linearpattern.Direction = (doc.getObject("X_Axis"), [""])
linearpattern.Mode = "offset"
linearpattern.setExpression("Offset", "Params.linearpattern_pitch")
linearpattern.Occurrences = 4
body.Tip = linearpattern
doc.recompute()

mirrored = body.newObject("PartDesign::Mirrored", "Mirrored")
mirrored.Originals = [pad2]
mirrored.MirrorPlane = (doc.getObject("XZ_Plane"), [""])
body.Tip = mirrored

# Sketch on XZ plane
sketch4 = body.newObject("Sketcher::SketchObject", "Sketch003")
sketch4.AttachmentSupport = (doc.getObject("XZ_Plane"), [""])
sketch4.MapMode = "FlatFace"
sketch4.AttachmentOffset = App.Placement(App.Vector(0, 0, 2.54), App.Rotation())
sketch4.addGeometry(Part.LineSegment(App.Vector(-1.57, 0.25, 0), App.Vector(-1.57, 0, 0)), False)
sketch4.addGeometry(Part.LineSegment(App.Vector(-1.57, 0, 0), App.Vector(-0.97, 0, 0)), False)
sketch4.addGeometry(Part.LineSegment(App.Vector(-0.97, 0, 0), App.Vector(-0.97, 0.25, 0)), False)
sketch4.addGeometry(Part.LineSegment(App.Vector(-0.97, 0.25, 0), App.Vector(-1.57, 0.25, 0)), False)
sketch4.addConstraint(Sketcher.Constraint("Coincident", 0, 2, 1, 1))
sketch4.addConstraint(Sketcher.Constraint("Coincident", 1, 2, 2, 1))
sketch4.addConstraint(Sketcher.Constraint("Coincident", 2, 2, 3, 1))
sketch4.addConstraint(Sketcher.Constraint("Coincident", 3, 2, 0, 1))
sketch4.addConstraint(Sketcher.Constraint("Vertical", 0))
sketch4.addConstraint(Sketcher.Constraint("Horizontal", 1))
sketch4.addConstraint(Sketcher.Constraint("Vertical", 2))
sketch4.addConstraint(Sketcher.Constraint("Horizontal", 3))
sketch4.addConstraint(Sketcher.Constraint("PointOnObject", 0, 2, -1))
sketch4.addConstraint(Sketcher.Constraint("DistanceX", 1, 1, 1, 2, 0.6))
sketch4.addConstraint(Sketcher.Constraint("DistanceY", 0, 2, 0, 1, 0.25))
sketch4.addConstraint(Sketcher.Constraint("DistanceX", 0, 2, -1, 1, 1.57))
sketch4.setExpression("Constraints[9]", "Params.sketch4_width")
sketch4.setExpression("Constraints[10]", "Params.sketch4_height")
pad3 = body.newObject("PartDesign::Pad", "Pad002")
pad3.Profile = sketch4
pad3.setExpression("Length", "Params.pad3_length")

# Sketch on XZ plane
sketch5 = body.newObject("Sketcher::SketchObject", "Sketch004")
sketch5.AttachmentSupport = (doc.getObject("XZ_Plane"), [""])
sketch5.MapMode = "FlatFace"
sketch5.AttachmentOffset = App.Placement(App.Vector(0, 0, 2.54), App.Rotation())
sketch5.addGeometry(Part.LineSegment(App.Vector(0.97, 0.25, 0), App.Vector(0.97, 0, 0)), False)
sketch5.addGeometry(Part.LineSegment(App.Vector(0.97, 0, 0), App.Vector(1.57, 0, 0)), False)
sketch5.addGeometry(Part.LineSegment(App.Vector(1.57, 0, 0), App.Vector(1.57, 0.25, 0)), False)
sketch5.addGeometry(Part.LineSegment(App.Vector(1.57, 0.25, 0), App.Vector(0.97, 0.25, 0)), False)
sketch5.addConstraint(Sketcher.Constraint("Coincident", 0, 2, 1, 1))
sketch5.addConstraint(Sketcher.Constraint("Coincident", 1, 2, 2, 1))
sketch5.addConstraint(Sketcher.Constraint("Coincident", 2, 2, 3, 1))
sketch5.addConstraint(Sketcher.Constraint("Coincident", 3, 2, 0, 1))
sketch5.addConstraint(Sketcher.Constraint("Vertical", 0))
sketch5.addConstraint(Sketcher.Constraint("Horizontal", 1))
sketch5.addConstraint(Sketcher.Constraint("Vertical", 2))
sketch5.addConstraint(Sketcher.Constraint("Horizontal", 3))
sketch5.addConstraint(Sketcher.Constraint("PointOnObject", 0, 2, -1))
sketch5.addConstraint(Sketcher.Constraint("DistanceX", 1, 1, 1, 2, 0.6))
sketch5.addConstraint(Sketcher.Constraint("DistanceY", 0, 2, 0, 1, 0.25))
sketch5.addConstraint(Sketcher.Constraint("DistanceX", -1, 1, 0, 2, 0.97))
sketch5.setExpression("Constraints[9]", "Params.sketch5_width")
sketch5.setExpression("Constraints[10]", "Params.sketch5_height")
pad4 = body.newObject("PartDesign::Pad", "Pad003")
pad4.Profile = sketch5
pad4.setExpression("Length", "Params.pad4_length")

# Sketch on XZ plane
sketch6 = body.newObject("Sketcher::SketchObject", "Sketch005")
sketch6.AttachmentSupport = (doc.getObject("XZ_Plane"), [""])
sketch6.MapMode = "FlatFace"
sketch6.AttachmentOffset = App.Placement(App.Vector(0, 0, 2.54), App.Rotation())
sketch6.addGeometry(Part.LineSegment(App.Vector(3.51, 0.25, 0), App.Vector(3.51, 0, 0)), False)
sketch6.addGeometry(Part.LineSegment(App.Vector(3.51, 0, 0), App.Vector(4.11, 0, 0)), False)
sketch6.addGeometry(Part.LineSegment(App.Vector(4.11, 0, 0), App.Vector(4.11, 0.25, 0)), False)
sketch6.addGeometry(Part.LineSegment(App.Vector(4.11, 0.25, 0), App.Vector(3.51, 0.25, 0)), False)
sketch6.addConstraint(Sketcher.Constraint("Coincident", 0, 2, 1, 1))
sketch6.addConstraint(Sketcher.Constraint("Coincident", 1, 2, 2, 1))
sketch6.addConstraint(Sketcher.Constraint("Coincident", 2, 2, 3, 1))
sketch6.addConstraint(Sketcher.Constraint("Coincident", 3, 2, 0, 1))
sketch6.addConstraint(Sketcher.Constraint("Vertical", 0))
sketch6.addConstraint(Sketcher.Constraint("Horizontal", 1))
sketch6.addConstraint(Sketcher.Constraint("Vertical", 2))
sketch6.addConstraint(Sketcher.Constraint("Horizontal", 3))
sketch6.addConstraint(Sketcher.Constraint("PointOnObject", 0, 2, -1))
sketch6.addConstraint(Sketcher.Constraint("DistanceX", 1, 1, 1, 2, 0.6))
sketch6.addConstraint(Sketcher.Constraint("DistanceY", 0, 2, 0, 1, 0.25))
sketch6.addConstraint(Sketcher.Constraint("DistanceX", -1, 1, 0, 2, 3.51))
sketch6.setExpression("Constraints[9]", "Params.sketch6_width")
sketch6.setExpression("Constraints[10]", "Params.sketch6_height")
pad5 = body.newObject("PartDesign::Pad", "Pad004")
pad5.Profile = sketch6
pad5.setExpression("Length", "Params.pad5_length")

doc.recompute()
